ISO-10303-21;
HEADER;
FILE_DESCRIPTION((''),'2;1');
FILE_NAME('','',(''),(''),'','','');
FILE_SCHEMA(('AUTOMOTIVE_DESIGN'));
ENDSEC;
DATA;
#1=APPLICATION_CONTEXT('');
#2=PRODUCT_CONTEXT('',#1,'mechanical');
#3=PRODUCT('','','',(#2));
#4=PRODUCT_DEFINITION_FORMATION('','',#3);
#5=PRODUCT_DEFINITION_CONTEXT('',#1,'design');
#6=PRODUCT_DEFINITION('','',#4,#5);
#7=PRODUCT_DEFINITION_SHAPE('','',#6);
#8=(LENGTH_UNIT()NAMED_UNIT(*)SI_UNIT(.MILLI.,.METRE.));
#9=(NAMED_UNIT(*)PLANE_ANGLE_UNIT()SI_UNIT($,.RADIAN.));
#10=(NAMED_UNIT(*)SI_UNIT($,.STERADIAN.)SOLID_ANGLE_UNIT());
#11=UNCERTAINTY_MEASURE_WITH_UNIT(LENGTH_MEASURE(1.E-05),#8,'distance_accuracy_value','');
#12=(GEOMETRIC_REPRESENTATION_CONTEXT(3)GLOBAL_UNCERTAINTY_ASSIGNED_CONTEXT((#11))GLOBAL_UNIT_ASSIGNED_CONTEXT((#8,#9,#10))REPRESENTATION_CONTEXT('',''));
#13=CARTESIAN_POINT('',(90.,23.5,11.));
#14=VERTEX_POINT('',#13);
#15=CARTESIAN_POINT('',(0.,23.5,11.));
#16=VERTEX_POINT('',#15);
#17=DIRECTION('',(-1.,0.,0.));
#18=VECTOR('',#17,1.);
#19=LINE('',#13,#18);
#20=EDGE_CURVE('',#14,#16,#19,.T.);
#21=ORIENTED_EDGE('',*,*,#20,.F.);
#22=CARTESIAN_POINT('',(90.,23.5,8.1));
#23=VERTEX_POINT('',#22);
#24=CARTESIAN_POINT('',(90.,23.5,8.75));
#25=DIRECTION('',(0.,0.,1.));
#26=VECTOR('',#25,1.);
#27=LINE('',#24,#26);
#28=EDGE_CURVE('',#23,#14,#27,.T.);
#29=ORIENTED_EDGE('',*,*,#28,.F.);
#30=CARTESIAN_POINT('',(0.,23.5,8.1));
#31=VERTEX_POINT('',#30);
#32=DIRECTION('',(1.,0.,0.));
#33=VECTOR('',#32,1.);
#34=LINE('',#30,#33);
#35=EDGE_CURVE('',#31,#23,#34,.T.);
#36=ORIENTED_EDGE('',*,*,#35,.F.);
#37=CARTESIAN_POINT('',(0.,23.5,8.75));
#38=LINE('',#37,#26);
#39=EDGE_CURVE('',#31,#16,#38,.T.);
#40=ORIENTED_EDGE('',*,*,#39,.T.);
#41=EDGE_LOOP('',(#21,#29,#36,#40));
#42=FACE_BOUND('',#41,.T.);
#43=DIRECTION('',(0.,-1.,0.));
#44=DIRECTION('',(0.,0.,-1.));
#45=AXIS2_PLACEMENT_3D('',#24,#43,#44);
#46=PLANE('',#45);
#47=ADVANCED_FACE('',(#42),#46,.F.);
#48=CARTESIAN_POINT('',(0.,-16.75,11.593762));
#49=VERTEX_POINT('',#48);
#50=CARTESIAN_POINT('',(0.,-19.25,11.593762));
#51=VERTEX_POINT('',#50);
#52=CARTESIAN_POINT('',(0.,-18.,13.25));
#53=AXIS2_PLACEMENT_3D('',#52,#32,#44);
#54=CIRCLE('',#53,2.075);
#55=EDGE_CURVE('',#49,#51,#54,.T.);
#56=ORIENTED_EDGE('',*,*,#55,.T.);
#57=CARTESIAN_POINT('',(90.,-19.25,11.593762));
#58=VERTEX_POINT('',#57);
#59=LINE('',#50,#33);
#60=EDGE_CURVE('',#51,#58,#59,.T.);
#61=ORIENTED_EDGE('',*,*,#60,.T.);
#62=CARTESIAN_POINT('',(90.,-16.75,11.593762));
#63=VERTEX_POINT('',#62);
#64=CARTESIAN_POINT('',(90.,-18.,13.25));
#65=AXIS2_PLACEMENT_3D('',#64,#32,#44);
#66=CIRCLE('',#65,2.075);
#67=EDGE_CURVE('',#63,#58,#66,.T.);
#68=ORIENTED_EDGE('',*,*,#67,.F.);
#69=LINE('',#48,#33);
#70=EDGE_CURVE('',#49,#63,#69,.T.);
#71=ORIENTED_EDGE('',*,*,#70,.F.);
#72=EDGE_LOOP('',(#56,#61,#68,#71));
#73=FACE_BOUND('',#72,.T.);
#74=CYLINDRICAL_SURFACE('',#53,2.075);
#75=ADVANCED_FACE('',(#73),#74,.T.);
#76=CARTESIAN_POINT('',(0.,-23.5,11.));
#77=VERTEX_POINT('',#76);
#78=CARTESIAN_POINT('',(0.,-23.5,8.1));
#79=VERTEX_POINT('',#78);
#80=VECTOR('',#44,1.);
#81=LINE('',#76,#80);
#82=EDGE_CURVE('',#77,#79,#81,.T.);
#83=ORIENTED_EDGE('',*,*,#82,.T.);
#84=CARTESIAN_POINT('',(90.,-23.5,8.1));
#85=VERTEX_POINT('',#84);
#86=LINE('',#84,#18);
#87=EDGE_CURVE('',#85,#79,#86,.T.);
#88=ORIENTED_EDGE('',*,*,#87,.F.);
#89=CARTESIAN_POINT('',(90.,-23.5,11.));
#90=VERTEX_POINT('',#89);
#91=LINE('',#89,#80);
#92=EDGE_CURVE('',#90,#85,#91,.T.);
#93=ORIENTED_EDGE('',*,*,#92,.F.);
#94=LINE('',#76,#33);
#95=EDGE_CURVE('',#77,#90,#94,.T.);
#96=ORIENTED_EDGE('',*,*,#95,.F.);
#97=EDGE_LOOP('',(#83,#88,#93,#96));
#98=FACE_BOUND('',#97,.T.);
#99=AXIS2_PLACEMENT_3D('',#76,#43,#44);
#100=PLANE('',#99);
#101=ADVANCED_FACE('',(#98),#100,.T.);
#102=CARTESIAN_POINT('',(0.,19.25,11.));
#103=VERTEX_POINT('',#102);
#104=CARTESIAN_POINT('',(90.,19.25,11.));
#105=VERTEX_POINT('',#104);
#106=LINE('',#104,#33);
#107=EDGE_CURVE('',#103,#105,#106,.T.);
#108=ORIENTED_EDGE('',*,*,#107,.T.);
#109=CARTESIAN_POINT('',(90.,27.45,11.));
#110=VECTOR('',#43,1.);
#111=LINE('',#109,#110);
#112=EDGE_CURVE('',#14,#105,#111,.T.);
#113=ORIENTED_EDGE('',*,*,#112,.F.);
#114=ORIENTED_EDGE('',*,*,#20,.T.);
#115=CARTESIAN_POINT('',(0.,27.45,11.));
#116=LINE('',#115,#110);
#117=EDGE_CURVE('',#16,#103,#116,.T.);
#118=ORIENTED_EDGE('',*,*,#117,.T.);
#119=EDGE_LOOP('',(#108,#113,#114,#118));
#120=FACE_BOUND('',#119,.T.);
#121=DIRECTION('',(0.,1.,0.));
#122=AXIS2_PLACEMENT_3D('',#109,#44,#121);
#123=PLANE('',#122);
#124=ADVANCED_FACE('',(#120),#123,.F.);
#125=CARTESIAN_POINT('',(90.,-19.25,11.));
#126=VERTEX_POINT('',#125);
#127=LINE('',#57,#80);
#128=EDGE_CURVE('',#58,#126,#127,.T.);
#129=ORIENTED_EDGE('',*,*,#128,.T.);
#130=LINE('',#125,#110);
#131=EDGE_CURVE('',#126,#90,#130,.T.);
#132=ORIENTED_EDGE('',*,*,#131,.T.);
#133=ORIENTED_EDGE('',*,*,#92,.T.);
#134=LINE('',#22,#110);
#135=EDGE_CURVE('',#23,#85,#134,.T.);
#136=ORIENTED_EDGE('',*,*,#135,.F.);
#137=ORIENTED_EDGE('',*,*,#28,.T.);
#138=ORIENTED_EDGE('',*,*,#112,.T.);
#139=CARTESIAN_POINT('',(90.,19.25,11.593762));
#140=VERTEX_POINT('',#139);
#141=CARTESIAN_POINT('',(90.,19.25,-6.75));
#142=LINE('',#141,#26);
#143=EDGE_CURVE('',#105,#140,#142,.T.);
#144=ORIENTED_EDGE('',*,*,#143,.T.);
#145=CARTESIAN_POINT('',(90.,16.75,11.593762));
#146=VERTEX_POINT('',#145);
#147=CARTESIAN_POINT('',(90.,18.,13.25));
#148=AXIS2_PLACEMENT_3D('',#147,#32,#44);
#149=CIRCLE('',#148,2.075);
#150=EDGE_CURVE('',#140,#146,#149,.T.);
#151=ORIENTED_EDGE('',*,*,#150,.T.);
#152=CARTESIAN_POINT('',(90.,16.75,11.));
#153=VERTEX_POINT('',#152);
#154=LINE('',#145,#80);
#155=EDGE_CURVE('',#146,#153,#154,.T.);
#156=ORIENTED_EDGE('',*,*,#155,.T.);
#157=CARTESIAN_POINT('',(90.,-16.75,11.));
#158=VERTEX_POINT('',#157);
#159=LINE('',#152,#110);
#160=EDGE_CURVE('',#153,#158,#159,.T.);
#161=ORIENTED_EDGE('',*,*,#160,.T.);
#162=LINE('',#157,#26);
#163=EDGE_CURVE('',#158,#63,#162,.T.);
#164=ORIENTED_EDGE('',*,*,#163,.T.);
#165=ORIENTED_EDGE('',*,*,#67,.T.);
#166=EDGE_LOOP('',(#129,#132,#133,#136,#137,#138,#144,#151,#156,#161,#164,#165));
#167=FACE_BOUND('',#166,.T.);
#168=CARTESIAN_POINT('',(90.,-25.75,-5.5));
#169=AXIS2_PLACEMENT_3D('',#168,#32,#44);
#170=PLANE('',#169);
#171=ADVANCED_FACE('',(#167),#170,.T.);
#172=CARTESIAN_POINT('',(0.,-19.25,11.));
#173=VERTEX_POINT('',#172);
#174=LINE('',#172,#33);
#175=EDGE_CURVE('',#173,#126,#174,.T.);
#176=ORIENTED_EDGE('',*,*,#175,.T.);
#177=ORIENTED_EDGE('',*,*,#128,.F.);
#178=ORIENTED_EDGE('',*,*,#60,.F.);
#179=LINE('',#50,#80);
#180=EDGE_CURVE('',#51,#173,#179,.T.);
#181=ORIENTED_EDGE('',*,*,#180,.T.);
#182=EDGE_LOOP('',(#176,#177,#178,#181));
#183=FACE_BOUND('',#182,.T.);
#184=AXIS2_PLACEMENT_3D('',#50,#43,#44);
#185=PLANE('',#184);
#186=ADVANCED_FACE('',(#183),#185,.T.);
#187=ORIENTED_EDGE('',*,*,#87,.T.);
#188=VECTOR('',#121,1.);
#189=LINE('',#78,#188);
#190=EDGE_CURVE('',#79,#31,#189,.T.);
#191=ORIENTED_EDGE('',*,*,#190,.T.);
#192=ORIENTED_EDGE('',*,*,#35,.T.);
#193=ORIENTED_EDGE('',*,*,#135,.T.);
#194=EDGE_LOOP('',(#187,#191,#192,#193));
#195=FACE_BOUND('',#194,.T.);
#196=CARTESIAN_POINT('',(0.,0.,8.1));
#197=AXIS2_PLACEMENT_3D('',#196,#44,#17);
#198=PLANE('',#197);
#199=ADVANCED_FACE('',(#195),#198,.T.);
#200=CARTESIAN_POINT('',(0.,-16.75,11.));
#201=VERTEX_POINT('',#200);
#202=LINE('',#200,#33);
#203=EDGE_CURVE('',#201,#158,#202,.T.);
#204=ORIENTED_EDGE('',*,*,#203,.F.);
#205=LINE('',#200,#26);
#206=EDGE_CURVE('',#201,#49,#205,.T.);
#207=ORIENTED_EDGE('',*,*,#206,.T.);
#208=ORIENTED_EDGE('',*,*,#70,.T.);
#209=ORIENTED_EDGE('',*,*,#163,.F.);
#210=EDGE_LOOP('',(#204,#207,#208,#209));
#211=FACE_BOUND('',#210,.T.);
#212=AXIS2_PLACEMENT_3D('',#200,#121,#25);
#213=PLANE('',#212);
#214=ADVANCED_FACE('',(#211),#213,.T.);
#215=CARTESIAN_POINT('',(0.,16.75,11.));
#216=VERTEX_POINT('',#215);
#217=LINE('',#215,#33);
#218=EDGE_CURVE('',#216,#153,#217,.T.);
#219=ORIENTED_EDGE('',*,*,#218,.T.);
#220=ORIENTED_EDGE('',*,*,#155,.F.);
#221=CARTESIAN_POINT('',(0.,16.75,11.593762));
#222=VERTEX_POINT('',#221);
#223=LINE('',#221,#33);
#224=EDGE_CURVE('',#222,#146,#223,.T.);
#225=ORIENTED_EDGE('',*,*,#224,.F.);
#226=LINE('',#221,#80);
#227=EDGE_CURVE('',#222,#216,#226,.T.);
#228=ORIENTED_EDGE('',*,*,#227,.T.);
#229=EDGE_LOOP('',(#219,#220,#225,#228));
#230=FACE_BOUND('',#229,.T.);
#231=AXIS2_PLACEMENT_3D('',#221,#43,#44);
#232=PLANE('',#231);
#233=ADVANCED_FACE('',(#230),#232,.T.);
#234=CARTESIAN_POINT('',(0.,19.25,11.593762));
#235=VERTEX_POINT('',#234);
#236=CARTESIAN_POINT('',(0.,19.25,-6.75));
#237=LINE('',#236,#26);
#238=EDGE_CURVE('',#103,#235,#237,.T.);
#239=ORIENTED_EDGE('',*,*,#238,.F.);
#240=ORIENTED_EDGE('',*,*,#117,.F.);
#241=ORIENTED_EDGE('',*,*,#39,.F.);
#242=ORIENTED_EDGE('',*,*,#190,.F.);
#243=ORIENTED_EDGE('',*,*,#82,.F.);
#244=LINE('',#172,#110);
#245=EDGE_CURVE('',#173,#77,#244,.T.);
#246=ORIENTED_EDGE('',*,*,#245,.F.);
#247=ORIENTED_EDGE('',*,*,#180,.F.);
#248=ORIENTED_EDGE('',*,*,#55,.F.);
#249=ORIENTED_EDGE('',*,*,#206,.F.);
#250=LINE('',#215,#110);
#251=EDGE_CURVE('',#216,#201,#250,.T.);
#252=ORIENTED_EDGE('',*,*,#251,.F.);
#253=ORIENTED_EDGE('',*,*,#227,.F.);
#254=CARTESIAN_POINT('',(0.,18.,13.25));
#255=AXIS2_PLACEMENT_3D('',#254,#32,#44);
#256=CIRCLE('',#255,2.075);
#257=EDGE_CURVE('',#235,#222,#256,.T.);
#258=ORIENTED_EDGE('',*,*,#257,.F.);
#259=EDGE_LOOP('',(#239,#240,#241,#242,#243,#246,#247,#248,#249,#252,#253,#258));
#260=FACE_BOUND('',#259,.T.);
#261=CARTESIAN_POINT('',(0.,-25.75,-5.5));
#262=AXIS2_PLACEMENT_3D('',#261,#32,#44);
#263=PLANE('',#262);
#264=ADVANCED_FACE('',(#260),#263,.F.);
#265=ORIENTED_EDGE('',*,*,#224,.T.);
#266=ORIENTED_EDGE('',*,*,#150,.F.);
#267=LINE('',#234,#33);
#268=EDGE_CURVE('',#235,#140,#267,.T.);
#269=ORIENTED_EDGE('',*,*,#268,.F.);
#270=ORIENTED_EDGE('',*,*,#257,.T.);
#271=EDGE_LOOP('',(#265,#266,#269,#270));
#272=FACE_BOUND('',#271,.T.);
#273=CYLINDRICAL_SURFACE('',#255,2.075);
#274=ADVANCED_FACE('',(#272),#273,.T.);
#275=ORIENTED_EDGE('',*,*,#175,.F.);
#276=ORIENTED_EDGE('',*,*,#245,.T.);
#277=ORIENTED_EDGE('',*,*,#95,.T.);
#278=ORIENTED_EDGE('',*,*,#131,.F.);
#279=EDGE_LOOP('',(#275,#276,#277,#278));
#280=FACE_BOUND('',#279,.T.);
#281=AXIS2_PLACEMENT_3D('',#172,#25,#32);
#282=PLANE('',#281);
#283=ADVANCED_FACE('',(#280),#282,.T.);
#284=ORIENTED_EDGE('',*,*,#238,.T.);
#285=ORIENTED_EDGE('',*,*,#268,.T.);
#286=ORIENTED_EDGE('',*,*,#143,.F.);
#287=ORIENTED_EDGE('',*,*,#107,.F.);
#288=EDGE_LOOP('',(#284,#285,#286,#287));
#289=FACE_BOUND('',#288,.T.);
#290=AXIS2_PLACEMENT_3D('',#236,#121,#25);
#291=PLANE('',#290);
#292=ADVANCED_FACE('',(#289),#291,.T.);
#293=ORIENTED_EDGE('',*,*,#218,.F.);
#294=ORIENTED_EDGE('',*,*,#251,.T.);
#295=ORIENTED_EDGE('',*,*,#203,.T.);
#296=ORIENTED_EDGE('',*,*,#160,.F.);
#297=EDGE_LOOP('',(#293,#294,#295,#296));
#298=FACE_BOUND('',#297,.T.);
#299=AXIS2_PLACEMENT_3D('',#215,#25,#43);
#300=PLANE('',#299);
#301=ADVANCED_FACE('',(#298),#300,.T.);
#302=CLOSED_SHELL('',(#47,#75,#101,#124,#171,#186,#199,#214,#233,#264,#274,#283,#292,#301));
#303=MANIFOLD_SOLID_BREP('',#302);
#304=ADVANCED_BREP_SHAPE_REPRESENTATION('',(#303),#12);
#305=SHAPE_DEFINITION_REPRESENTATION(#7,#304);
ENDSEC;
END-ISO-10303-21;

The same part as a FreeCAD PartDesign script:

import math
import FreeCAD as App
import Part
import Sketcher
Q = App.Units.Quantity


def edges_at(feature, points):
    """Names of the edges that pass closest to the given points."""
    edges = feature.Shape.Edges
    near = lambda p: min(range(len(edges)), key=lambda i: edges[i].distToShape(Part.Vertex(*p))[0])
    return sorted({f"Edge{near(p) + 1}" for p in points})


def add_polygon(sketch, points):
    """Adds a closed chain of lines whose ends are joined by coincident constraints."""
    first, n = sketch.GeometryCount, len(points)
    for a, b in zip(points, points[1:] + points[:1]):
        sketch.addGeometry(Part.LineSegment(App.Vector(*a, 0), App.Vector(*b, 0)), False)
    for i in range(n):
        sketch.addConstraint(Sketcher.Constraint("Coincident", first + i, 2, first + (i + 1) % n, 1))

doc = App.newDocument("Part")
body = doc.addObject("PartDesign::Body", "Body")

# Sketch on YZ plane
sketch1 = body.newObject("Sketcher::SketchObject", "Sketch")
sketch1.AttachmentSupport = (doc.getObject("YZ_Plane"), [""])
sketch1.MapMode = "FlatFace"
sketch1.AttachmentOffset = App.Placement(App.Vector(0, 0, 90), App.Rotation())
sketch1.addGeometry(Part.LineSegment(App.Vector(-24.1, -6.8, 0), App.Vector(19.2, -6.8, 0)), False)
sketch1.addGeometry(Part.LineSegment(App.Vector(19.2, -6.8, 0), App.Vector(19.2, 11.6, 0)), False)
sketch1.addGeometry(Part.ArcOfCircle(Part.Circle(App.Vector(18, 13.2, 0), App.Vector(0, 0, 1), 2.1), math.radians(-53), math.radians(233)), False)
sketch1.addGeometry(Part.LineSegment(App.Vector(16.8, 11.6, 0), App.Vector(16.8, 11, 0)), False)
sketch1.addGeometry(Part.LineSegment(App.Vector(16.8, 11, 0), App.Vector(-16.8, 11, 0)), False)
sketch1.addGeometry(Part.LineSegment(App.Vector(-16.8, 11, 0), App.Vector(-16.8, 11.6, 0)), False)
sketch1.addGeometry(Part.ArcOfCircle(Part.Circle(App.Vector(-18, 13.2, 0), App.Vector(0, 0, 1), 2.1), math.radians(-53), math.radians(233)), False)
sketch1.addGeometry(Part.LineSegment(App.Vector(-19.2, 11.6, 0), App.Vector(-19.2, 11, 0)), False)
sketch1.addGeometry(Part.LineSegment(App.Vector(-19.2, 11, 0), App.Vector(-23.5, 11, 0)), False)
sketch1.addGeometry(Part.LineSegment(App.Vector(-23.5, 11, 0), App.Vector(-23.5, 6.8, 0)), False)
sketch1.addGeometry(Part.LineSegment(App.Vector(-23.5, 6.8, 0), App.Vector(-24.1, 6.8, 0)), False)
sketch1.addGeometry(Part.ArcOfCircle(Part.Circle(App.Vector(-25.8, 5.5, 0), App.Vector(0, 0, 1), 2.1), math.radians(37), math.radians(323)), False)
sketch1.addGeometry(Part.LineSegment(App.Vector(-24.1, 4.2, 0), App.Vector(-23.5, 4.2, 0)), False)
sketch1.addGeometry(Part.LineSegment(App.Vector(-23.5, 4.2, 0), App.Vector(-23.5, -4.2, 0)), False)
sketch1.addGeometry(Part.LineSegment(App.Vector(-23.5, -4.2, 0), App.Vector(-24.1, -4.2, 0)), False)
sketch1.addGeometry(Part.ArcOfCircle(Part.Circle(App.Vector(-25.8, -5.5, 0), App.Vector(0, 0, 1), 2.1), math.radians(37), math.radians(323)), False)
sketch1.addConstraint(Sketcher.Constraint("Coincident", 0, 2, 1, 1))
sketch1.addConstraint(Sketcher.Constraint("Coincident", 1, 2, 2, 1))
sketch1.addConstraint(Sketcher.Constraint("Coincident", 2, 2, 3, 1))
sketch1.addConstraint(Sketcher.Constraint("Coincident", 3, 2, 4, 1))
sketch1.addConstraint(Sketcher.Constraint("Coincident", 4, 2, 5, 1))
sketch1.addConstraint(Sketcher.Constraint("Coincident", 5, 2, 6, 1))
sketch1.addConstraint(Sketcher.Constraint("Coincident", 6, 2, 7, 1))
sketch1.addConstraint(Sketcher.Constraint("Coincident", 7, 2, 8, 1))
sketch1.addConstraint(Sketcher.Constraint("Coincident", 8, 2, 9, 1))
sketch1.addConstraint(Sketcher.Constraint("Coincident", 9, 2, 10, 1))
sketch1.addConstraint(Sketcher.Constraint("Coincident", 10, 2, 11, 1))
sketch1.addConstraint(Sketcher.Constraint("Coincident", 11, 2, 12, 1))
sketch1.addConstraint(Sketcher.Constraint("Coincident", 12, 2, 13, 1))
sketch1.addConstraint(Sketcher.Constraint("Coincident", 13, 2, 14, 1))
sketch1.addConstraint(Sketcher.Constraint("Coincident", 14, 2, 15, 1))
sketch1.addConstraint(Sketcher.Constraint("Coincident", 15, 2, 0, 1))
sketch1.addConstraint(Sketcher.Constraint("Horizontal", 0))
sketch1.addConstraint(Sketcher.Constraint("Vertical", 1))
sketch1.addConstraint(Sketcher.Constraint("Vertical", 3))
sketch1.addConstraint(Sketcher.Constraint("Horizontal", 4))
sketch1.addConstraint(Sketcher.Constraint("Vertical", 5))
sketch1.addConstraint(Sketcher.Constraint("Vertical", 7))
sketch1.addConstraint(Sketcher.Constraint("Horizontal", 8))
sketch1.addConstraint(Sketcher.Constraint("Vertical", 9))
sketch1.addConstraint(Sketcher.Constraint("Horizontal", 10))
sketch1.addConstraint(Sketcher.Constraint("Horizontal", 12))
sketch1.addConstraint(Sketcher.Constraint("Vertical", 13))
sketch1.addConstraint(Sketcher.Constraint("Horizontal", 14))
sketch1.addConstraint(Sketcher.Constraint("Equal", 2, 6))
sketch1.addConstraint(Sketcher.Constraint("Equal", 6, 11))
sketch1.addConstraint(Sketcher.Constraint("Equal", 11, 15))
sketch1.addConstraint(Sketcher.Constraint("Symmetric", 2, 3, 6, 3, -2))
sketch1.addConstraint(Sketcher.Constraint("Symmetric", 11, 3, 15, 3, -1))
sketch1.addConstraint(Sketcher.Constraint("Horizontal", 1, 2, 2, 2))
sketch1.addConstraint(Sketcher.Constraint("Horizontal", 2, 2, 5, 2))
sketch1.addConstraint(Sketcher.Constraint("Horizontal", 5, 2, 6, 2))
sketch1.addConstraint(Sketcher.Constraint("Horizontal", 4, 2, 7, 2))
sketch1.addConstraint(Sketcher.Constraint("Vertical", 10, 2, 11, 2))
sketch1.addConstraint(Sketcher.Constraint("Vertical", 9, 2, 12, 2))
sketch1.addConstraint(Sketcher.Constraint("Vertical", 11, 2, 14, 2))
sketch1.addConstraint(Sketcher.Constraint("Vertical", 14, 2, 15, 2))
sketch1.addConstraint(Sketcher.Constraint("Equal", 14, 3))
sketch1.addConstraint(Sketcher.Constraint("Equal", 8, 9))
sketch1.addConstraint(Sketcher.Constraint("DistanceX", 4, 2, 4, 1, Q("33.5 mm")))
sketch1.addConstraint(Sketcher.Constraint("DistanceY", 13, 2, 13, 1, Q("8.5 mm")))
sketch1.addConstraint(Sketcher.Constraint("DistanceX", -1, 1, 2, 3, Q("18 mm")))
sketch1.addConstraint(Sketcher.Constraint("DistanceY", -1, 1, 3, 2, Q("11 mm")))
sketch1.addConstraint(Sketcher.Constraint("Radius", 2, Q("2.075 mm")))
sketch1.addConstraint(Sketcher.Constraint("DistanceY", 15, 3, 11, 3, Q("11 mm")))
sketch1.addConstraint(Sketcher.Constraint("DistanceY", 0, 2, 2, 3, Q("20 mm")))
pad1 = body.newObject("PartDesign::Pad", "Pad")
pad1.Profile = sketch1
pad1.Length = 90
pad1.Reversed = True

# Sketch on XZ plane
sketch2 = body.newObject("Sketcher::SketchObject", "Sketch001")
sketch2.AttachmentSupport = (doc.getObject("XZ_Plane"), [""])
sketch2.MapMode = "FlatFace"
sketch2.AttachmentOffset = App.Placement(App.Vector(0, 0, -19.25), App.Rotation())
add_polygon(sketch2, [(90, 11), (90, -7), (0, -7), (0, 11)])  # lines 0-3
sketch2.addConstraint(Sketcher.Constraint("Vertical", 0))
sketch2.addConstraint(Sketcher.Constraint("Horizontal", 1))
sketch2.addConstraint(Sketcher.Constraint("Vertical", 2))
sketch2.addConstraint(Sketcher.Constraint("Horizontal", 3))
sketch2.addConstraint(Sketcher.Constraint("PointOnObject", 1, 2, -2))
sketch2.addConstraint(Sketcher.Constraint("DistanceX", 1, 2, 1, 1, Q("90 mm")))
sketch2.addConstraint(Sketcher.Constraint("DistanceY", -1, 1, 2, 2, Q("11 mm")))
sketch2.addConstraint(Sketcher.Constraint("DistanceY", 0, 2, 0, 1, Q("17.75 mm")))
pad2 = body.newObject("PartDesign::Pad", "Pad001")
pad2.Profile = sketch2
pad2.Length = 8.2
pad2.Reversed = True

# Sketch on XY plane
sketch3 = body.newObject("Sketcher::SketchObject", "Sketch002")
sketch3.AttachmentSupport = (doc.getObject("XY_Plane"), [""])
sketch3.MapMode = "FlatFace"
sketch3.AttachmentOffset = App.Placement(App.Vector(0, 0, -6.75), App.Rotation())
add_polygon(sketch3, [(90, 27), (90, -24), (0, -24), (0, 27)])  # lines 0-3
sketch3.addConstraint(Sketcher.Constraint("Vertical", 0))
sketch3.addConstraint(Sketcher.Constraint("Horizontal", 1))
sketch3.addConstraint(Sketcher.Constraint("Vertical", 2))
sketch3.addConstraint(Sketcher.Constraint("Horizontal", 3))
sketch3.addConstraint(Sketcher.Constraint("PointOnObject", 1, 2, -2))
sketch3.addConstraint(Sketcher.Constraint("DistanceX", 1, 2, 1, 1, Q("90 mm")))
sketch3.addConstraint(Sketcher.Constraint("DistanceY", 0, 2, 0, 1, Q("50.95 mm")))
sketch3.addConstraint(Sketcher.Constraint("DistanceY", 0, 2, -1, 1, Q("23.5 mm")))
pad3 = body.newObject("PartDesign::Pad", "Pad002")
pad3.Profile = sketch3
pad3.Length = 8.2
pad3.Reversed = True

# Sketch on YZ plane
sketch4 = body.newObject("Sketcher::SketchObject", "Sketch003")
sketch4.AttachmentSupport = (doc.getObject("YZ_Plane"), [""])
sketch4.MapMode = "FlatFace"
add_polygon(sketch4, [(14.8, -14.9), (-14.8, -14.9), (-14.8, -11), (14.8, -11)])  # lines 0-3
sketch4.addConstraint(Sketcher.Constraint("Horizontal", 0))
sketch4.addConstraint(Sketcher.Constraint("Vertical", 1))
sketch4.addConstraint(Sketcher.Constraint("Horizontal", 2))
sketch4.addConstraint(Sketcher.Constraint("Vertical", 3))
sketch4.addConstraint(Sketcher.Constraint("DistanceX", 0, 2, 0, 1, Q("29.5 mm")))
sketch4.addConstraint(Sketcher.Constraint("DistanceY", 1, 2, -1, 1, Q("11 mm")))
sketch4.addConstraint(Sketcher.Constraint("DistanceY", 1, 1, 1, 2, Q("3.95 mm")))
sketch4.addConstraint(Sketcher.Constraint("DistanceX", 0, 2, -1, 1, Q("14.75 mm")))
pocket1 = body.newObject("PartDesign::Pocket", "Pocket")
pocket1.Profile = sketch4
pocket1.Type = "ThroughAll"
pocket1.Reversed = True

# Sketch on YZ plane
sketch5 = body.newObject("Sketcher::SketchObject", "Sketch004")
sketch5.AttachmentSupport = (doc.getObject("YZ_Plane"), [""])
sketch5.MapMode = "FlatFace"
add_polygon(sketch5, [(27.4, -14.9), (21.2, -14.9), (21.2, -11), (27.4, -11)])  # lines 0-3
sketch5.addConstraint(Sketcher.Constraint("Horizontal", 0))
sketch5.addConstraint(Sketcher.Constraint("Vertical", 1))
sketch5.addConstraint(Sketcher.Constraint("Horizontal", 2))
sketch5.addConstraint(Sketcher.Constraint("Vertical", 3))
sketch5.addConstraint(Sketcher.Constraint("DistanceX", 0, 2, 0, 1, Q("6.2 mm")))
sketch5.addConstraint(Sketcher.Constraint("DistanceY", 1, 2, -1, 1, Q("11 mm")))
sketch5.addConstraint(Sketcher.Constraint("DistanceY", 1, 1, 1, 2, Q("3.95 mm")))
sketch5.addConstraint(Sketcher.Constraint("DistanceX", -1, 1, 0, 2, Q("21.25 mm")))
pocket2 = body.newObject("PartDesign::Pocket", "Pocket001")
pocket2.Profile = sketch5
pocket2.Type = "ThroughAll"
pocket2.Reversed = True

# Sketch on YZ plane
sketch6 = body.newObject("Sketcher::SketchObject", "Sketch005")
sketch6.AttachmentSupport = (doc.getObject("YZ_Plane"), [""])
sketch6.MapMode = "FlatFace"
add_polygon(sketch6, [(27.4, -11), (23.5, -11), (23.5, -8.8), (27.4, -8.8)])  # lines 0-3
sketch6.addConstraint(Sketcher.Constraint("Horizontal", 0))
sketch6.addConstraint(Sketcher.Constraint("Vertical", 1))
sketch6.addConstraint(Sketcher.Constraint("Horizontal", 2))
sketch6.addConstraint(Sketcher.Constraint("Vertical", 3))
sketch6.addConstraint(Sketcher.Constraint("DistanceY", 0, 2, -1, 1, Q("11 mm")))
sketch6.addConstraint(Sketcher.Constraint("DistanceX", 0, 2, 0, 1, Q("3.95 mm")))
sketch6.addConstraint(Sketcher.Constraint("DistanceY", 1, 1, 1, 2, Q("2.25 mm")))
sketch6.addConstraint(Sketcher.Constraint("DistanceX", -1, 1, 0, 2, Q("23.5 mm")))
pocket3 = body.newObject("PartDesign::Pocket", "Pocket002")
pocket3.Profile = sketch6
pocket3.Type = "ThroughAll"
pocket3.Reversed = True

# Sketch on YZ plane
sketch7 = body.newObject("Sketcher::SketchObject", "Sketch006")
sketch7.AttachmentSupport = (doc.getObject("YZ_Plane"), [""])
sketch7.MapMode = "FlatFace"
add_polygon(sketch7, [(27.4, -2.2), (23.5, -2.2), (23.5, 2.2), (27.4, 2.2)])  # lines 0-3
sketch7.addConstraint(Sketcher.Constraint("Horizontal", 0))
sketch7.addConstraint(Sketcher.Constraint("Vertical", 1))
sketch7.addConstraint(Sketcher.Constraint("Horizontal", 2))
sketch7.addConstraint(Sketcher.Constraint("Vertical", 3))
sketch7.addConstraint(Sketcher.Constraint("DistanceY", 1, 1, 1, 2, Q("4.5 mm")))
sketch7.addConstraint(Sketcher.Constraint("DistanceX", 0, 2, 0, 1, Q("3.95 mm")))
sketch7.addConstraint(Sketcher.Constraint("DistanceX", -1, 1, 0, 2, Q("23.5 mm")))
sketch7.addConstraint(Sketcher.Constraint("DistanceY", 0, 2, -1, 1, Q("2.25 mm")))
pocket4 = body.newObject("PartDesign::Pocket", "Pocket003")
pocket4.Profile = sketch7
pocket4.Type = "ThroughAll"
pocket4.Reversed = True

# Sketch on YZ plane
sketch8 = body.newObject("Sketcher::SketchObject", "Sketch007")
sketch8.AttachmentSupport = (doc.getObject("YZ_Plane"), [""])
sketch8.MapMode = "FlatFace"
add_polygon(sketch8, [(27.4, 8.8), (23.5, 8.8), (23.5, 11), (27.4, 11)])  # lines 0-3
sketch8.addConstraint(Sketcher.Constraint("Horizontal", 0))
sketch8.addConstraint(Sketcher.Constraint("Vertical", 1))
sketch8.addConstraint(Sketcher.Constraint("Horizontal", 2))
sketch8.addConstraint(Sketcher.Constraint("Vertical", 3))
sketch8.addConstraint(Sketcher.Constraint("DistanceY", -1, 1, 1, 2, Q("11 mm")))
sketch8.addConstraint(Sketcher.Constraint("DistanceX", 0, 2, 0, 1, Q("3.95 mm")))
sketch8.addConstraint(Sketcher.Constraint("DistanceY", 1, 1, 1, 2, Q("2.25 mm")))
sketch8.addConstraint(Sketcher.Constraint("DistanceX", -1, 1, 0, 2, Q("23.5 mm")))
pocket5 = body.newObject("PartDesign::Pocket", "Pocket004")
pocket5.Profile = sketch8
pocket5.Type = "ThroughAll"
pocket5.Reversed = True

# Sketch on YZ plane
sketch9 = body.newObject("Sketcher::SketchObject", "Sketch008")
sketch9.AttachmentSupport = (doc.getObject("YZ_Plane"), [""])
sketch9.MapMode = "FlatFace"
add_polygon(sketch9, [(-21.2, -14.9), (-23.5, -14.9), (-23.5, -11), (-21.2, -11)])  # lines 0-3
sketch9.addConstraint(Sketcher.Constraint("Horizontal", 0))
sketch9.addConstraint(Sketcher.Constraint("Vertical", 1))
sketch9.addConstraint(Sketcher.Constraint("Horizontal", 2))
sketch9.addConstraint(Sketcher.Constraint("Vertical", 3))
sketch9.addConstraint(Sketcher.Constraint("DistanceY", 1, 2, -1, 1, Q("11 mm")))
sketch9.addConstraint(Sketcher.Constraint("DistanceX", 0, 2, 0, 1, Q("2.25 mm")))
sketch9.addConstraint(Sketcher.Constraint("DistanceY", 1, 1, 1, 2, Q("3.95 mm")))
sketch9.addConstraint(Sketcher.Constraint("DistanceX", 0, 2, -1, 1, Q("23.5 mm")))
pocket6 = body.newObject("PartDesign::Pocket", "Pocket005")
pocket6.Profile = sketch9
pocket6.Type = "ThroughAll"
pocket6.Reversed = True

# Sketch on YZ plane
sketch10 = body.newObject("Sketcher::SketchObject", "Sketch009")
sketch10.AttachmentSupport = (doc.getObject("YZ_Plane"), [""])
sketch10.MapMode = "FlatFace"
sketch10.AttachmentOffset = App.Placement(App.Vector(0, 0, 90), App.Rotation())
add_polygon(sketch10, [(23, 10), (-23, 10), (-23, -10), (23, -10)])  # lines 0-3
sketch10.addConstraint(Sketcher.Constraint("Horizontal", 0))
sketch10.addConstraint(Sketcher.Constraint("Vertical", 1))
sketch10.addConstraint(Sketcher.Constraint("Horizontal", 2))
sketch10.addConstraint(Sketcher.Constraint("Vertical", 3))
sketch10.addConstraint(Sketcher.Constraint("Symmetric", 0, 2, 2, 2, -1, 1))
sketch10.addConstraint(Sketcher.Constraint("DistanceX", 0, 2, 0, 1, Q("45.2 mm")))
sketch10.addConstraint(Sketcher.Constraint("DistanceY", 1, 2, 1, 1, Q("20.2 mm")))
pocket7 = body.newObject("PartDesign::Pocket", "Pocket006")
pocket7.Profile = sketch10
pocket7.Length = 86

# Sketch on YZ plane
sketch11 = body.newObject("Sketcher::SketchObject", "Sketch010")
sketch11.AttachmentSupport = (doc.getObject("YZ_Plane"), [""])
sketch11.MapMode = "FlatFace"
sketch11.AttachmentOffset = App.Placement(App.Vector(0, 0, 90), App.Rotation())
sketch11.addGeometry(Part.Circle(App.Vector(-25.8, -5.5, 0), App.Vector(0, 0, 1), 1.2), False)
sketch11.addGeometry(Part.Circle(App.Vector(-18, 13.2, 0), App.Vector(0, 0, 1), 1.2), False)
sketch11.addGeometry(Part.Circle(App.Vector(-25.8, 5.5, 0), App.Vector(0, 0, 1), 1.2), False)
sketch11.addGeometry(Part.Circle(App.Vector(18, 13.2, 0), App.Vector(0, 0, 1), 1.2), False)
sketch11.addConstraint(Sketcher.Constraint("Equal", 0, 1))
sketch11.addConstraint(Sketcher.Constraint("Equal", 1, 2))
sketch11.addConstraint(Sketcher.Constraint("Equal", 2, 3))
sketch11.addConstraint(Sketcher.Constraint("Symmetric", 1, 3, 3, 3, -2))
sketch11.addConstraint(Sketcher.Constraint("Symmetric", 0, 3, 2, 3, -1))
sketch11.addConstraint(Sketcher.Constraint("Diameter", 0, Q("2.5 mm")))
sketch11.addConstraint(Sketcher.Constraint("DistanceX", 1, 3, -1, 1, Q("18 mm")))
sketch11.addConstraint(Sketcher.Constraint("DistanceY", 0, 3, 2, 3, Q("11 mm")))
sketch11.addConstraint(Sketcher.Constraint("DistanceX", 0, 3, -1, 1, Q("25.75 mm")))
sketch11.addConstraint(Sketcher.Constraint("DistanceY", -1, 1, 1, 3, Q("13.25 mm")))
doc.recompute()
hole = body.newObject("PartDesign::Hole", "Hole")
hole.Profile = sketch11
hole.ThreadType = "None"
hole.Diameter = 2.5
hole.DepthType = "ThroughAll"

# Sketch on YZ plane
sketch12 = body.newObject("Sketcher::SketchObject", "Sketch011")
sketch12.AttachmentSupport = (doc.getObject("YZ_Plane"), [""])
sketch12.MapMode = "FlatFace"
sketch12.addGeometry(Part.Circle(App.Vector(-18, -13.2, 0), App.Vector(0, 0, 1), 2.2), False)
sketch12.addGeometry(Part.Circle(App.Vector(18, -13.2, 0), App.Vector(0, 0, 1), 2.2), False)
sketch12.addGeometry(Part.Circle(App.Vector(25.8, -5.5, 0), App.Vector(0, 0, 1), 2.2), False)
sketch12.addGeometry(Part.Circle(App.Vector(25.8, 5.5, 0), App.Vector(0, 0, 1), 2.2), False)
sketch12.addConstraint(Sketcher.Constraint("Equal", 0, 1))
sketch12.addConstraint(Sketcher.Constraint("Equal", 1, 2))
sketch12.addConstraint(Sketcher.Constraint("Equal", 2, 3))
sketch12.addConstraint(Sketcher.Constraint("Symmetric", 0, 3, 1, 3, -2))
sketch12.addConstraint(Sketcher.Constraint("Symmetric", 2, 3, 3, 3, -1))
sketch12.addConstraint(Sketcher.Constraint("Diameter", 0, Q("4.5 mm")))
sketch12.addConstraint(Sketcher.Constraint("DistanceX", 0, 3, -1, 1, Q("18 mm")))
sketch12.addConstraint(Sketcher.Constraint("DistanceY", 2, 3, 3, 3, Q("11 mm")))
sketch12.addConstraint(Sketcher.Constraint("DistanceY", 0, 3, -1, 1, Q("13.25 mm")))
sketch12.addConstraint(Sketcher.Constraint("DistanceX", -1, 1, 2, 3, Q("25.75 mm")))
doc.recompute()
hole2 = body.newObject("PartDesign::Hole", "Hole001")
hole2.Profile = sketch12
hole2.ThreadType = "None"
hole2.Diameter = 4.5
hole2.DepthType = "ThroughAll"
hole2.Reversed = True

# Sketch on YZ plane
sketch13 = body.newObject("Sketcher::SketchObject", "Sketch012")
sketch13.AttachmentSupport = (doc.getObject("YZ_Plane"), [""])
sketch13.MapMode = "FlatFace"
sketch13.addGeometry(Part.Circle(App.Vector(0, 0, 0), App.Vector(0, 0, 1), 4.2), False)
sketch13.addConstraint(Sketcher.Constraint("Coincident", 0, 3, -1, 1))
sketch13.addConstraint(Sketcher.Constraint("Diameter", 0, Q("8.3 mm")))
doc.recompute()
hole3 = body.newObject("PartDesign::Hole", "Hole002")
hole3.Profile = sketch13
hole3.ThreadType = "None"
hole3.Diameter = 8.3
hole3.DepthType = "Dimension"
hole3.Depth = 3.2
hole3.DrillPoint = "Flat"
hole3.Reversed = True
doc.recompute()

fillet = body.newObject("PartDesign::Fillet", "Fillet")
fillet.Base = (hole3, edges_at(hole3, [(45, 23.5, 8.75)]))
fillet.Radius = 2
doc.recompute()

fillet2 = body.newObject("PartDesign::Fillet", "Fillet001")
fillet2.Base = (fillet, edges_at(fillet, [
    (45, 23.5, -8.75),
    (45, 23.5, 2.25),
    (45, 23.5, -2.25),
    (45, -21.25, -11),
    (4, 0, -10.1),
    (4, -22.6, 0),
    (4, 0, 10.1),
    (4, 22.6, 0),
    (45, 14.75, -11),
    (45, -14.75, -11),
    (45, 21.25, -11),
]))
fillet2.Radius = 2

# Sketch on YZ plane
sketch14 = body.newObject("Sketcher::SketchObject", "Sketch013")
sketch14.AttachmentSupport = (doc.getObject("YZ_Plane"), [""])
sketch14.MapMode = "FlatFace"
sketch14.addGeometry(Part.Circle(App.Vector(-25.8, -5.5, 0), App.Vector(0, 0, 1), 1.2), False)
sketch14.addGeometry(Part.Circle(App.Vector(-25.8, 5.5, 0), App.Vector(0, 0, 1), 1.2), False)
sketch14.addGeometry(Part.Circle(App.Vector(-18, 13.2, 0), App.Vector(0, 0, 1), 1.2), False)
sketch14.addGeometry(Part.Circle(App.Vector(18, 13.2, 0), App.Vector(0, 0, 1), 1.2), False)
sketch14.addConstraint(Sketcher.Constraint("Equal", 0, 1))
sketch14.addConstraint(Sketcher.Constraint("Equal", 1, 2))
sketch14.addConstraint(Sketcher.Constraint("Equal", 2, 3))
sketch14.addConstraint(Sketcher.Constraint("Symmetric", 2, 3, 3, 3, -2))
sketch14.addConstraint(Sketcher.Constraint("Symmetric", 0, 3, 1, 3, -1))
sketch14.addConstraint(Sketcher.Constraint("Diameter", 0, Q("2.5 mm")))
sketch14.addConstraint(Sketcher.Constraint("DistanceX", 2, 3, -1, 1, Q("18 mm")))
sketch14.addConstraint(Sketcher.Constraint("DistanceY", 0, 3, 1, 3, Q("11 mm")))
sketch14.addConstraint(Sketcher.Constraint("DistanceX", 0, 3, -1, 1, Q("25.75 mm")))
sketch14.addConstraint(Sketcher.Constraint("DistanceY", -1, 1, 2, 3, Q("13.25 mm")))
pad4 = body.newObject("PartDesign::Pad", "Pad003")
pad4.Profile = sketch14
pad4.Length = 90

# Sketch on YZ plane
sketch15 = body.newObject("Sketcher::SketchObject", "Sketch014")
sketch15.AttachmentSupport = (doc.getObject("YZ_Plane"), [""])
sketch15.MapMode = "FlatFace"
sketch15.AttachmentOffset = App.Placement(App.Vector(0, 0, 100), App.Rotation())
sketch15.addGeometry(Part.Circle(App.Vector(0, 0, 0), App.Vector(0, 0, 1), 4.2), False)
sketch15.addConstraint(Sketcher.Constraint("Coincident", 0, 3, -1, 1))
sketch15.addConstraint(Sketcher.Constraint("Diameter", 0, Q("8.3 mm")))
pocket8 = body.newObject("PartDesign::Pocket", "Pocket007")
pocket8.Profile = sketch15
pocket8.Length = 100

# Sketch on YZ plane
sketch16 = body.newObject("Sketcher::SketchObject", "Sketch015")
sketch16.AttachmentSupport = (doc.getObject("YZ_Plane"), [""])
sketch16.MapMode = "FlatFace"
sketch16.AttachmentOffset = App.Placement(App.Vector(0, 0, 90), App.Rotation())
add_polygon(sketch16, [(32, 10), (-31, 10), (-31, -19), (32, -18)])  # lines 0-3
sketch16.addConstraint(Sketcher.Constraint("Horizontal", 0))
sketch16.addConstraint(Sketcher.Constraint("Vertical", 1))
sketch16.addConstraint(Sketcher.Constraint("Vertical", 3))
sketch16.addConstraint(Sketcher.Constraint("DistanceY", -1, 1, 0, 2, Q("10.1 mm")))
sketch16.addConstraint(Sketcher.Constraint("DistanceY", 1, 2, 1, 1, Q("28.767008 mm")))
sketch16.addConstraint(Sketcher.Constraint("DistanceY", 3, 1, 3, 2, Q("28.217629 mm")))
sketch16.addConstraint(Sketcher.Constraint("DistanceX", 0, 2, 0, 1, Q("62.550732 mm")))
sketch16.addConstraint(Sketcher.Constraint("DistanceX", 0, 2, -1, 1, Q("30.769686 mm")))
pocket9 = body.newObject("PartDesign::Pocket", "Pocket008")
pocket9.Profile = sketch16
pocket9.Length = 108

# Sketch on YZ plane
sketch17 = body.newObject("Sketcher::SketchObject", "Sketch016")
sketch17.AttachmentSupport = (doc.getObject("YZ_Plane"), [""])
sketch17.MapMode = "FlatFace"
sketch17.AttachmentOffset = App.Placement(App.Vector(0, 0, 90), App.Rotation())
sketch17.addGeometry(Part.LineSegment(App.Vector(23.5, 10.75, 0), App.Vector(23.5, 10.1, 0)), False)
sketch17.addGeometry(Part.LineSegment(App.Vector(23.5, 10.1, 0), App.Vector(23.61, 10.1, 0)), False)
sketch17.addGeometry(Part.ArcOfCircle(Part.Circle(App.Vector(25.5, 10.75, 0), App.Vector(0, 0, 1), 2), math.radians(180), math.radians(198.97)), False)
sketch17.addConstraint(Sketcher.Constraint("Coincident", 0, 2, 1, 1))
sketch17.addConstraint(Sketcher.Constraint("Coincident", 1, 2, 2, 2))
sketch17.addConstraint(Sketcher.Constraint("Tangent", 2, 1, 0, 1))
sketch17.addConstraint(Sketcher.Constraint("Vertical", 0))
sketch17.addConstraint(Sketcher.Constraint("Horizontal", 1))
sketch17.addConstraint(Sketcher.Constraint("Radius", 2, Q("2 mm")))
sketch17.addConstraint(Sketcher.Constraint("DistanceY", 0, 2, 0, 1, Q("0.65 mm")))
sketch17.addConstraint(Sketcher.Constraint("DistanceX", -1, 1, 2, 3, Q("25.5 mm")))
sketch17.addConstraint(Sketcher.Constraint("DistanceY", -1, 1, 0, 2, Q("10.1 mm")))
pocket10 = body.newObject("PartDesign::Pocket", "Pocket009")
pocket10.Profile = sketch17
pocket10.Length = 108

# Sketch on XY plane
sketch18 = body.newObject("Sketcher::SketchObject", "Sketch017")
sketch18.AttachmentSupport = (doc.getObject("XY_Plane"), [""])
sketch18.MapMode = "FlatFace"
sketch18.AttachmentOffset = App.Placement(App.Vector(0, 0, 10.1), App.Rotation())
add_polygon(sketch18, [(90, 24), (90, -24), (0, -24), (0, 24)])  # lines 0-3
sketch18.addConstraint(Sketcher.Constraint("Vertical", 0))
sketch18.addConstraint(Sketcher.Constraint("Horizontal", 1))
sketch18.addConstraint(Sketcher.Constraint("Vertical", 2))
sketch18.addConstraint(Sketcher.Constraint("Horizontal", 3))
sketch18.addConstraint(Sketcher.Constraint("Symmetric", 1, 2, 2, 2, -1, 1))
sketch18.addConstraint(Sketcher.Constraint("DistanceX", 1, 2, 1, 1, Q("90 mm")))
sketch18.addConstraint(Sketcher.Constraint("DistanceY", 0, 2, 0, 1, Q("47 mm")))
pad5 = body.newObject("PartDesign::Pad", "Pad004")
pad5.Profile = sketch18
pad5.Length = 2
pad5.Reversed = True

doc.recompute()
